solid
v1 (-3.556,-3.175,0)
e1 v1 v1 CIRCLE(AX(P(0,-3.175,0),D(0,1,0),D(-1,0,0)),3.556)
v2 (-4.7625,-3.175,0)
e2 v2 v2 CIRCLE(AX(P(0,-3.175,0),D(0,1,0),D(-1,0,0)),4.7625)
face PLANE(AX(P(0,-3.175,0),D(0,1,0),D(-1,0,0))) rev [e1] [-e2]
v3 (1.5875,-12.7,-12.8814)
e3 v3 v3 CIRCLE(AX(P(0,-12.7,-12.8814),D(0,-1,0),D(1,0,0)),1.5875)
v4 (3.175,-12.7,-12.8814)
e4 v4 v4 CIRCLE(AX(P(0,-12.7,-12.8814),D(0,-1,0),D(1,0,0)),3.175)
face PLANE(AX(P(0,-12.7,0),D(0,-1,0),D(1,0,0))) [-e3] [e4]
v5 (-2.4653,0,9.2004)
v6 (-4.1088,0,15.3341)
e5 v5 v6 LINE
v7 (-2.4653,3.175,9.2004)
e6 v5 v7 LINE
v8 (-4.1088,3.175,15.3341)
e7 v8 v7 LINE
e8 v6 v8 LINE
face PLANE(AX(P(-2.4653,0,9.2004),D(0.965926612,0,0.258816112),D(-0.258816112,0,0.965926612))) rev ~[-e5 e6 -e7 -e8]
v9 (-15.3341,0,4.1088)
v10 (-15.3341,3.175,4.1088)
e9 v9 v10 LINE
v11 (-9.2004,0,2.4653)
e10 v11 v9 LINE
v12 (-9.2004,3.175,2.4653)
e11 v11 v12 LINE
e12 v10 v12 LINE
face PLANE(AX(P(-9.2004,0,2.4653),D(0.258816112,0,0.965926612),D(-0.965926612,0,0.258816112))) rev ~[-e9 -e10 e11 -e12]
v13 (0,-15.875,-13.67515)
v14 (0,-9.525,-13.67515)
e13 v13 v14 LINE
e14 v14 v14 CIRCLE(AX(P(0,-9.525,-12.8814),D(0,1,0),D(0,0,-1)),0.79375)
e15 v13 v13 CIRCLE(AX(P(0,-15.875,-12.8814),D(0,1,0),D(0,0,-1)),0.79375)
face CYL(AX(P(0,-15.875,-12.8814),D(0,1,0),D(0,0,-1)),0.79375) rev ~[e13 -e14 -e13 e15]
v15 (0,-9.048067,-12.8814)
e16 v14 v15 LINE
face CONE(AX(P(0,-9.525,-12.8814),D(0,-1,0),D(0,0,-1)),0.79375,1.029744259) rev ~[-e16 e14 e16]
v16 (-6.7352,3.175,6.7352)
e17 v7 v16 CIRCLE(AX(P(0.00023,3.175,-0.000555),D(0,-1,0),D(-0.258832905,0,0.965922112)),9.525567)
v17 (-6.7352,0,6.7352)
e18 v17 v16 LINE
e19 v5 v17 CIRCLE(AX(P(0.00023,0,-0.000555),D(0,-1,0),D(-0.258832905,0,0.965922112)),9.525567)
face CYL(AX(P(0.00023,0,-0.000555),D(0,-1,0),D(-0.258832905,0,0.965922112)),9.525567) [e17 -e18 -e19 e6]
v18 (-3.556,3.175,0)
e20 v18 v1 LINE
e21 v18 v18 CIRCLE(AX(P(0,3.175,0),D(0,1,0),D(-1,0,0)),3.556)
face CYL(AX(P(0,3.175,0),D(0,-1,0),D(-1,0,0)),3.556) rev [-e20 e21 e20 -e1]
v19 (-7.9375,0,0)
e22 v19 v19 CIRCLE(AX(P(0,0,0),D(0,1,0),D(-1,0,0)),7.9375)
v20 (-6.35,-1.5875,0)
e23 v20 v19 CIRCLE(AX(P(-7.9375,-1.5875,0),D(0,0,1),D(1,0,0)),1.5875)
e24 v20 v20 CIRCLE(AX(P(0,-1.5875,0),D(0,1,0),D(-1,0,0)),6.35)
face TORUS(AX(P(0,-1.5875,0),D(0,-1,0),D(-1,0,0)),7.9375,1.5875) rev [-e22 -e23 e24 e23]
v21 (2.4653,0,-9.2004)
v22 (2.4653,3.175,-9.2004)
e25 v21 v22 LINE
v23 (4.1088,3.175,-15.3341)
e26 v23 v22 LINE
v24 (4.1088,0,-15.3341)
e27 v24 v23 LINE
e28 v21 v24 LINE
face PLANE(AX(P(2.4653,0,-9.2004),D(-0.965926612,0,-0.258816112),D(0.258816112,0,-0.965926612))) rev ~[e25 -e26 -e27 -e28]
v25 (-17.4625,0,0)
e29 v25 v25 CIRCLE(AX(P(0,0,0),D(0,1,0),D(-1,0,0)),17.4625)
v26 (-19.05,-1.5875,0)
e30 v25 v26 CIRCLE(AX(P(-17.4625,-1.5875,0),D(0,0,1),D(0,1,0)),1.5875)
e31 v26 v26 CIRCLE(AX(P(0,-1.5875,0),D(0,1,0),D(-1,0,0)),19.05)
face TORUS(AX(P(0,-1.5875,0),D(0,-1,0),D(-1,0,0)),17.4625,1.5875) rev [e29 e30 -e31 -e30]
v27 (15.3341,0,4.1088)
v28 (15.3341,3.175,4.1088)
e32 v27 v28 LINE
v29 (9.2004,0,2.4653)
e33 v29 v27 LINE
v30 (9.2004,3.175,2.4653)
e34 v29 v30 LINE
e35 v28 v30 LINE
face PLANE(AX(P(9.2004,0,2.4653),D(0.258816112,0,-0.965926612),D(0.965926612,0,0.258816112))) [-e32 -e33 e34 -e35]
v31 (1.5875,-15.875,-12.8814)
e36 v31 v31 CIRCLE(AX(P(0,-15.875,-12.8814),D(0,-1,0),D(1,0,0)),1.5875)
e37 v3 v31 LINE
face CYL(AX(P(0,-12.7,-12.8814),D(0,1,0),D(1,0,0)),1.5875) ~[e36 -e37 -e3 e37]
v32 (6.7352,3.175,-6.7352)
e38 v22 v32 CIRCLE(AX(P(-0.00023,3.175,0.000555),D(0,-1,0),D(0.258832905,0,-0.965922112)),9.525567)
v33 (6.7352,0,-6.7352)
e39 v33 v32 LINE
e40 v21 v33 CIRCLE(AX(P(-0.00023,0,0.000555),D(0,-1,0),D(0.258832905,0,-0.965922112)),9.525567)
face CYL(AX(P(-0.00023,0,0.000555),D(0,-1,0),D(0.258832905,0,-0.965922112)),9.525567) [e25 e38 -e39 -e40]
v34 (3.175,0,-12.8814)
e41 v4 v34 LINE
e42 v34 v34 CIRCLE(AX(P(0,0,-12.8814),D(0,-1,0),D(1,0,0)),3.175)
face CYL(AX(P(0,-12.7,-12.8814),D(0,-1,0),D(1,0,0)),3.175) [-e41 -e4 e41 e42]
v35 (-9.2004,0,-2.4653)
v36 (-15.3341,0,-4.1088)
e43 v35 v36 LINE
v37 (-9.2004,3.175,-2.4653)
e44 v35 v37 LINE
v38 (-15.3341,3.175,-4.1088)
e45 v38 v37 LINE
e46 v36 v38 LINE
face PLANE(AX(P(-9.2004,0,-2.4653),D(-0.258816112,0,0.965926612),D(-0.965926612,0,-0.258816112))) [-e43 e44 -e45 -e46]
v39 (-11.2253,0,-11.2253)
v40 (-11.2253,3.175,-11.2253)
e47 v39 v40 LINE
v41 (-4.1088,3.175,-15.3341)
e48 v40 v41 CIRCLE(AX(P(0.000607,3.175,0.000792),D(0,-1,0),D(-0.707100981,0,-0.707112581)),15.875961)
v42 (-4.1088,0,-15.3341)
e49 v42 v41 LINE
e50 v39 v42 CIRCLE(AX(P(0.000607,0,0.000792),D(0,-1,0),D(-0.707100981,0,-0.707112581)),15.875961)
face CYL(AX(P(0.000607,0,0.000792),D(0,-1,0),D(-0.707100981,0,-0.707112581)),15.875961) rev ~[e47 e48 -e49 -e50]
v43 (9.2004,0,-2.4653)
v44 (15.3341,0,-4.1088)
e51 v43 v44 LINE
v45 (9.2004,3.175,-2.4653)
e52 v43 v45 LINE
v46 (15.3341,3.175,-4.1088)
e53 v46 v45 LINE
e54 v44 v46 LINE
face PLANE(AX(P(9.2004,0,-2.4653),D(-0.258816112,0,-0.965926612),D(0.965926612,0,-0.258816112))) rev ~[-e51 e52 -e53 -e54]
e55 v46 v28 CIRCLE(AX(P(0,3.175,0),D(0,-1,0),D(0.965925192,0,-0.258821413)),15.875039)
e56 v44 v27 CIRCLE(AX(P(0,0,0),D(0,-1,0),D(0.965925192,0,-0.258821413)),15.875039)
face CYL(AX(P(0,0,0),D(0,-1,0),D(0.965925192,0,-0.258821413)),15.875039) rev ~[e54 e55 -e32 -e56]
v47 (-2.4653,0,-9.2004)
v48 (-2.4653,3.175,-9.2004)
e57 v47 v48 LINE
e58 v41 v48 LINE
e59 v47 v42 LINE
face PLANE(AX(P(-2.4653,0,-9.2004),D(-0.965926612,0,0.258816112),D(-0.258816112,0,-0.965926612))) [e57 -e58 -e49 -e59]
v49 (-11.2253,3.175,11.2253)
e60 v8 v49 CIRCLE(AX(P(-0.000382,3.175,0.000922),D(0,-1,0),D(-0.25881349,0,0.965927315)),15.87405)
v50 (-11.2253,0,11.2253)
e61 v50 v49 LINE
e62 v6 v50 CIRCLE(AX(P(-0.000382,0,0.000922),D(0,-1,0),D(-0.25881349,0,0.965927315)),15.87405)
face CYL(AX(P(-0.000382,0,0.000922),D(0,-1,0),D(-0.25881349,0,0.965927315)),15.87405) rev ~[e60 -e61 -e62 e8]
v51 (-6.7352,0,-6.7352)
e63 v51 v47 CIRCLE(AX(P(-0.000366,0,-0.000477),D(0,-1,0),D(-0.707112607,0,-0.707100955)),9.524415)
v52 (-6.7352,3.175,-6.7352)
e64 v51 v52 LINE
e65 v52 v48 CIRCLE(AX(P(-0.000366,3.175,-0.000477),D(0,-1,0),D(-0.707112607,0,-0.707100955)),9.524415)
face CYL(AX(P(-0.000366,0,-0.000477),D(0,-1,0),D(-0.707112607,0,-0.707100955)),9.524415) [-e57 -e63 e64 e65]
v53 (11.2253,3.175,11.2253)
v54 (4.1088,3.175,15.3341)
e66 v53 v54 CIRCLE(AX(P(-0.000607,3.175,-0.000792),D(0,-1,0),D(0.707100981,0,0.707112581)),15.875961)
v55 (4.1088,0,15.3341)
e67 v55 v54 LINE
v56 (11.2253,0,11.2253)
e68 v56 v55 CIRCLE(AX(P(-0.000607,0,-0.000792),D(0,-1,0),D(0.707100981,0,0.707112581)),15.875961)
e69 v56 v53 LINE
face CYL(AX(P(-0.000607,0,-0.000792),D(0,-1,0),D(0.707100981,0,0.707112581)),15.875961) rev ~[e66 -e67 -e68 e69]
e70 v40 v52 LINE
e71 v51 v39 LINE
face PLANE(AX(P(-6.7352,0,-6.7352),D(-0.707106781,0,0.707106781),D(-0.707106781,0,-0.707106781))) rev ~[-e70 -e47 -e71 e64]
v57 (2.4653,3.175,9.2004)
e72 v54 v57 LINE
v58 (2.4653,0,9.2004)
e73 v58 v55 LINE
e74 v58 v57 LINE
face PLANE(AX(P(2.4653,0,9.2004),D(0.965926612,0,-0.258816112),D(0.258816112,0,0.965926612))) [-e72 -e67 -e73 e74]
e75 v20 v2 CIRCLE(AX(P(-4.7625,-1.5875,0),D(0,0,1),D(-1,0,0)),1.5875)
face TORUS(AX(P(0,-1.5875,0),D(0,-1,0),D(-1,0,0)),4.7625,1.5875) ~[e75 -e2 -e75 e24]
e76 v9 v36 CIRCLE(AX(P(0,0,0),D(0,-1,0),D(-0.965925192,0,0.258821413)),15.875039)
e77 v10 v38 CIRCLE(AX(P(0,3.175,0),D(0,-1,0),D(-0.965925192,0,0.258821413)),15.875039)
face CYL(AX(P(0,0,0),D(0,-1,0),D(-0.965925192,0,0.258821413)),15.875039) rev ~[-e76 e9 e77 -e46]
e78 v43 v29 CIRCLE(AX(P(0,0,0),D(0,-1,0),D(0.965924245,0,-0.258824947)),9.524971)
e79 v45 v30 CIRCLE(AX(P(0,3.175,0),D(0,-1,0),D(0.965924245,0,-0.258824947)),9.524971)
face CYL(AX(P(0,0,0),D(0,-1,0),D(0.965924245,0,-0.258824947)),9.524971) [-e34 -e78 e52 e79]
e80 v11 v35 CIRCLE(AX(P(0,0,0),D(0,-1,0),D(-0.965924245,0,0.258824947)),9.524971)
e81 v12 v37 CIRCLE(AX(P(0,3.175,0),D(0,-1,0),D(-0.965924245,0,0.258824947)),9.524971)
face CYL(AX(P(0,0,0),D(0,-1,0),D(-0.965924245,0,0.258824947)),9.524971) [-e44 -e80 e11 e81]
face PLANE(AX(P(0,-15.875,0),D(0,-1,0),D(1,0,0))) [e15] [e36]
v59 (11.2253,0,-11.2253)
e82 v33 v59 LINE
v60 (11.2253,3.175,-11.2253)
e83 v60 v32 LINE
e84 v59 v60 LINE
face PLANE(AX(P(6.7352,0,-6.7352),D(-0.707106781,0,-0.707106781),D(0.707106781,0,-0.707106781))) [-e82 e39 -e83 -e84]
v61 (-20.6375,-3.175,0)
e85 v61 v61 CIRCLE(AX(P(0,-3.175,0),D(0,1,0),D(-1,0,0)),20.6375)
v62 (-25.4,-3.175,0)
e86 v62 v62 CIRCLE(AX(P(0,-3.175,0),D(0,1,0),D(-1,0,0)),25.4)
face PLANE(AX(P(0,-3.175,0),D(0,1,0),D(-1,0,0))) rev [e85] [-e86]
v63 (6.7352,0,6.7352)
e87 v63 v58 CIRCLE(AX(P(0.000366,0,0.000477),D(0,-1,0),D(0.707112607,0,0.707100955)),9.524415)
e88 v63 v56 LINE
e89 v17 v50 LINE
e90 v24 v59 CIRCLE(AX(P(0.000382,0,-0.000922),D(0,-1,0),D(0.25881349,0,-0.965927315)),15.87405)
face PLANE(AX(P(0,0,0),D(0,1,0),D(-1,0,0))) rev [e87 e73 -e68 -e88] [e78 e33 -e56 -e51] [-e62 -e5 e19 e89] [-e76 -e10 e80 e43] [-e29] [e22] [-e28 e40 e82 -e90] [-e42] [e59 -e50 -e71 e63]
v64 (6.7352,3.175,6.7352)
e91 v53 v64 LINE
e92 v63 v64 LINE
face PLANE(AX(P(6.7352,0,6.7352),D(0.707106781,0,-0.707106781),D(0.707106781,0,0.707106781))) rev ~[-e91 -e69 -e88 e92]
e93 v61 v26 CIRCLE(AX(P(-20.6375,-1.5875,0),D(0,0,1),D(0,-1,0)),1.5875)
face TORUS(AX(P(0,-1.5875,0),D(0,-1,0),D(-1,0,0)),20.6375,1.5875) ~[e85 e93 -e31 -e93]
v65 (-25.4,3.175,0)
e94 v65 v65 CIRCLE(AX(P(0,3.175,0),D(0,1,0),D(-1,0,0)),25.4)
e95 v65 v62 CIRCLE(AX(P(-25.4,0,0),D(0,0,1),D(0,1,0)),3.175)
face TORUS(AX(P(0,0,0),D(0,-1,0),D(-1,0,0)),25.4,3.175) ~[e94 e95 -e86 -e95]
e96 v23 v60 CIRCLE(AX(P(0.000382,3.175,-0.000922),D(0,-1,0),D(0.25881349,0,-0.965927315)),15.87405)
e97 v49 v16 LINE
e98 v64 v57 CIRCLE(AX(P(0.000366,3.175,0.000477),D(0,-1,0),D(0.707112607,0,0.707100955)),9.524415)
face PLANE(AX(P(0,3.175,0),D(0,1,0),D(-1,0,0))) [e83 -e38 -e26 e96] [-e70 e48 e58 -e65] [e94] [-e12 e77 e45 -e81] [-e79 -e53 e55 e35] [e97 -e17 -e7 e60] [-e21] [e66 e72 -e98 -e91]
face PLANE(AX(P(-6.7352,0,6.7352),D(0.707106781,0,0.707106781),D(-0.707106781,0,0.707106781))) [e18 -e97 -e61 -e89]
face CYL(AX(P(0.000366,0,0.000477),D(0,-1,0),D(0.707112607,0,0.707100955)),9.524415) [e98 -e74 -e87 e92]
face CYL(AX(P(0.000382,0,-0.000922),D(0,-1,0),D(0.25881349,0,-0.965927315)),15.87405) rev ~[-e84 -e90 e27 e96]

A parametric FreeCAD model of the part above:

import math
import FreeCAD as App
import Part
import Sketcher
from FreeCAD import Vector
Q = App.Units.Quantity

doc = App.newDocument("Part")
body = doc.addObject("PartDesign::Body", "Body")

# Sketch on XY plane
sketch1 = body.newObject("Sketcher::SketchObject", "Sketch")
sketch1.AttachmentSupport = (doc.getObject("XY_Plane"), [""])
sketch1.MapMode = "FlatFace"
sketch1.addGeometry([
    Part.LineSegment(Vector(-3.556, 3.175, 0), Vector(-25.4, 3.175, 0)),  # 0
    Part.ArcOfCircle(Part.Circle(Vector(-25.4, 0, 0), Vector(0, 0, 1), 3.175), math.radians(90), math.radians(270)),  # 1
    Part.LineSegment(Vector(-25.4, -3.175, 0), Vector(-20.6375, -3.175, 0)),  # 2
    Part.ArcOfCircle(Part.Circle(Vector(-20.6375, -1.5875, 0), Vector(0, 0, 1), 1.5875), math.radians(-90), math.radians(0)),  # 3
    Part.ArcOfCircle(Part.Circle(Vector(-17.4625, -1.5875, 0), Vector(0, 0, 1), 1.5875), math.radians(90), math.radians(180)),  # 4
    Part.LineSegment(Vector(-17.4625, 0, 0), Vector(-7.9375, 0, 0)),  # 5
    Part.ArcOfCircle(Part.Circle(Vector(-7.9375, -1.5875, 0), Vector(0, 0, 1), 1.5875), math.radians(0), math.radians(90)),  # 6
    Part.ArcOfCircle(Part.Circle(Vector(-4.7625, -1.5875, 0), Vector(0, 0, 1), 1.5875), math.radians(180), math.radians(270)),  # 7
    Part.LineSegment(Vector(-4.7625, -3.175, 0), Vector(-3.556, -3.175, 0)),  # 8
    Part.LineSegment(Vector(-3.556, -3.175, 0), Vector(-3.556, 3.175, 0)),  # 9
], False)
sketch1.addConstraint([
    Sketcher.Constraint("Tangent", 0, 2, 1, 1),
    Sketcher.Constraint("Tangent", 1, 2, 2, 1),
    Sketcher.Constraint("Tangent", 2, 2, 3, 1),
    Sketcher.Constraint("Tangent", 3, 2, 4, 2),
    Sketcher.Constraint("Tangent", 4, 1, 5, 1),
    Sketcher.Constraint("Tangent", 5, 2, 6, 2),
    Sketcher.Constraint("Tangent", 6, 1, 7, 1),
    Sketcher.Constraint("Tangent", 7, 2, 8, 1),
    Sketcher.Constraint("Coincident", 8, 2, 9, 1),
    Sketcher.Constraint("Coincident", 9, 2, 0, 1),
    Sketcher.Constraint("Horizontal", 0),
    Sketcher.Constraint("Horizontal", 2),
    Sketcher.Constraint("Horizontal", 5),
    Sketcher.Constraint("Horizontal", 8),
    Sketcher.Constraint("Vertical", 9),
    Sketcher.Constraint("Equal", 3, 4),
    Sketcher.Constraint("Equal", 4, 6),
    Sketcher.Constraint("Equal", 6, 7),
    Sketcher.Constraint("PointOnObject", 1, 3, -1),
    Sketcher.Constraint("PointOnObject", 4, 1, -1),
    Sketcher.Constraint("Horizontal", 3, 3, 4, 3),
    Sketcher.Constraint("Horizontal", 6, 3, 7, 3),
    Sketcher.Constraint("DistanceX", 1, 3, -1, 1, Q("1 in")),
    Sketcher.Constraint("Radius", 1, Q("0.125 in")),
    Sketcher.Constraint("DistanceX", 0, 2, 0, 1, Q("0.86 in")),
    Sketcher.Constraint("DistanceX", 6, 1, -1, 1, Q("0.25 in")),
    Sketcher.Constraint("DistanceX", 1, 3, 3, 2, Q("0.25 in")),
])
revolution = body.newObject("PartDesign::Revolution", "Revolution")
revolution.Profile = sketch1
revolution.ReferenceAxis = (sketch1, ["V_Axis"])
revolution.Angle = 360

# Sketch on XZ plane
sketch2 = body.newObject("Sketcher::SketchObject", "Sketch001")
sketch2.AttachmentSupport = (doc.getObject("XZ_Plane"), [""])
sketch2.MapMode = "FlatFace"
sketch2.addGeometry([
    Part.LineSegment(Vector(9.2004, -2.4653, 0), Vector(15.3341, -4.1088, 0)),  # 0
    Part.ArcOfCircle(Part.Circle(Vector(0, 0, 0), Vector(0, 0, 1), 15.875039), math.radians(-15.00014), math.radians(15.00014)),  # 1
    Part.LineSegment(Vector(15.3341, 4.1088, 0), Vector(9.2004, 2.4653, 0)),  # 2
    Part.ArcOfCircle(Part.Circle(Vector(0, 0, 0), Vector(0, 0, 1), 9.524971), math.radians(-15.00035), math.radians(15.00035)),  # 3
    Part.LineSegment(Vector(6.7352, 6.7352, 0), Vector(11.2253, 11.2253, 0)),  # 4
    Part.ArcOfCircle(Part.Circle(Vector(0, 0, 0), Vector(0, 0, 1), 15.875039), math.radians(45), math.radians(74.99986)),  # 5
    Part.LineSegment(Vector(4.1088, 15.3341, 0), Vector(2.4653, 9.2004, 0)),  # 6
    Part.ArcOfCircle(Part.Circle(Vector(0, 0, 0), Vector(0, 0, 1), 9.524971), math.radians(45), math.radians(74.99965)),  # 7
    Part.LineSegment(Vector(-2.4653, 9.2004, 0), Vector(-4.1088, 15.3341, 0)),  # 8
    Part.ArcOfCircle(Part.Circle(Vector(0, 0, 0), Vector(0, 0, 1), 15.874972), math.radians(105.00014), math.radians(135)),  # 9
    Part.LineSegment(Vector(-11.2253, 11.2253, 0), Vector(-6.7352, 6.7352, 0)),  # 10
    Part.ArcOfCircle(Part.Circle(Vector(0, 0, 0), Vector(0, 0, 1), 9.525011), math.radians(105.00035), math.radians(135)),  # 11
    Part.LineSegment(Vector(-9.2004, 2.4653, 0), Vector(-15.3341, 4.1088, 0)),  # 12
    Part.ArcOfCircle(Part.Circle(Vector(0, 0, 0), Vector(0, 0, 1), 15.875039), math.radians(164.99986), math.radians(195.00014)),  # 13
    Part.LineSegment(Vector(-15.3341, -4.1088, 0), Vector(-9.2004, -2.4653, 0)),  # 14
    Part.ArcOfCircle(Part.Circle(Vector(0, 0, 0), Vector(0, 0, 1), 9.524971), math.radians(164.99965), math.radians(195.00035)),  # 15
    Part.LineSegment(Vector(-6.7352, -6.7352, 0), Vector(-11.2253, -11.2253, 0)),  # 16
    Part.ArcOfCircle(Part.Circle(Vector(0, 0, 0), Vector(0, 0, 1), 15.875039), math.radians(-135), math.radians(-105.00014)),  # 17
    Part.LineSegment(Vector(-4.1088, -15.3341, 0), Vector(-2.4653, -9.2004, 0)),  # 18
    Part.ArcOfCircle(Part.Circle(Vector(0, 0, 0), Vector(0, 0, 1), 9.524971), math.radians(-135), math.radians(-105.00035)),  # 19
    Part.LineSegment(Vector(2.4653, -9.2004, 0), Vector(4.1088, -15.3341, 0)),  # 20
    Part.ArcOfCircle(Part.Circle(Vector(0, 0, 0), Vector(0, 0, 1), 15.874972), math.radians(-74.99986), math.radians(-45)),  # 21
    Part.LineSegment(Vector(11.2253, -11.2253, 0), Vector(6.7352, -6.7352, 0)),  # 22
    Part.ArcOfCircle(Part.Circle(Vector(0, 0, 0), Vector(0, 0, 1), 9.525011), math.radians(-74.99965), math.radians(-45)),  # 23
], False)
sketch2.addConstraint([
    Sketcher.Constraint("Coincident", 0, 2, 1, 1),
    Sketcher.Constraint("Coincident", 1, 2, 2, 1),
    Sketcher.Constraint("Coincident", 2, 2, 3, 2),
    Sketcher.Constraint("Coincident", 3, 1, 0, 1),
    Sketcher.Constraint("Coincident", 4, 2, 5, 1),
    Sketcher.Constraint("Coincident", 5, 2, 6, 1),
    Sketcher.Constraint("Coincident", 6, 2, 7, 2),
    Sketcher.Constraint("Coincident", 7, 1, 4, 1),
    Sketcher.Constraint("Coincident", 8, 2, 9, 1),
    Sketcher.Constraint("Coincident", 9, 2, 10, 1),
    Sketcher.Constraint("Coincident", 10, 2, 11, 2),
    Sketcher.Constraint("Coincident", 11, 1, 8, 1),
    Sketcher.Constraint("Coincident", 12, 2, 13, 1),
    Sketcher.Constraint("Coincident", 13, 2, 14, 1),
    Sketcher.Constraint("Coincident", 14, 2, 15, 2),
    Sketcher.Constraint("Coincident", 15, 1, 12, 1),
    Sketcher.Constraint("Coincident", 16, 2, 17, 1),
    Sketcher.Constraint("Coincident", 17, 2, 18, 1),
    Sketcher.Constraint("Coincident", 18, 2, 19, 2),
    Sketcher.Constraint("Coincident", 19, 1, 16, 1),
    Sketcher.Constraint("Coincident", 20, 2, 21, 1),
    Sketcher.Constraint("Coincident", 21, 2, 22, 1),
    Sketcher.Constraint("Coincident", 22, 2, 23, 2),
    Sketcher.Constraint("Coincident", 23, 1, 20, 1),
    Sketcher.Constraint("Coincident", 1, 3, -1, 1),
    Sketcher.Constraint("Coincident", 3, 3, -1, 1),
    Sketcher.Constraint("Coincident", 5, 3, -1, 1),
    Sketcher.Constraint("Coincident", 7, 3, -1, 1),
    Sketcher.Constraint("Coincident", 9, 3, -1, 1),
    Sketcher.Constraint("Coincident", 11, 3, -1, 1),
    Sketcher.Constraint("Coincident", 13, 3, -1, 1),
    Sketcher.Constraint("Coincident", 15, 3, -1, 1),
    Sketcher.Constraint("Coincident", 17, 3, -1, 1),
    Sketcher.Constraint("Coincident", 19, 3, -1, 1),
    Sketcher.Constraint("Coincident", 21, 3, -1, 1),
    Sketcher.Constraint("Coincident", 23, 3, -1, 1),
    Sketcher.Constraint("Equal", 1, 5),
    Sketcher.Constraint("Equal", 3, 7),
    Sketcher.Constraint("Equal", 5, 9),
    Sketcher.Constraint("Equal", 7, 11),
    Sketcher.Constraint("Equal", 9, 13),
    Sketcher.Constraint("Equal", 11, 15),
    Sketcher.Constraint("Equal", 13, 17),
    Sketcher.Constraint("Equal", 15, 19),
    Sketcher.Constraint("Equal", 17, 21),
    Sketcher.Constraint("Equal", 19, 23),
    Sketcher.Constraint("Perpendicular", 0, 6),
    Sketcher.Constraint("Perpendicular", 2, 8),
    Sketcher.Constraint("Perpendicular", 4, 10),
    Sketcher.Constraint("Perpendicular", 6, 12),
    Sketcher.Constraint("Perpendicular", 8, 14),
    Sketcher.Constraint("Perpendicular", 10, 16),
    Sketcher.Constraint("Perpendicular", 12, 18),
    Sketcher.Constraint("Perpendicular", 14, 20),
    Sketcher.Constraint("Perpendicular", 16, 22),
    Sketcher.Constraint("Horizontal", 5, 2, 8, 2),
    Sketcher.Constraint("Horizontal", 4, 2, 9, 2),
    Sketcher.Constraint("Horizontal", 7, 1, 10, 2),
    Sketcher.Constraint("Horizontal", 6, 2, 11, 1),
    Sketcher.Constraint("Horizontal", 1, 2, 12, 2),
    Sketcher.Constraint("Horizontal", 0, 2, 13, 2),
    Sketcher.Constraint("Horizontal", 17, 2, 20, 2),
    Sketcher.Constraint("Horizontal", 16, 2, 21, 2),
    Sketcher.Constraint("Vertical", 0, 2, 1, 2),
    Sketcher.Constraint("Vertical", 9, 2, 16, 2),
    Sketcher.Constraint("Vertical", 8, 2, 17, 2),
    Sketcher.Constraint("Radius", 1, Q("0.625 in")),
    Sketcher.Constraint("Radius", 3, Q("0.375 in")),
    Sketcher.Constraint("Angle", 0, Q("-14.9998 deg")),
    Sketcher.Constraint("DistanceY", 3, 1, 4, 2, Q("0.539 in")),
    Sketcher.Constraint("DistanceX", 9, 2, 6, 2, Q("0.539 in")),
    Sketcher.Constraint("DistanceX", -1, 1, 0, 2, Q("0.6037 in")),
])
pocket1 = body.newObject("PartDesign::Pocket", "Pocket")
pocket1.Profile = sketch2
pocket1.Length = Q("0.25 in")

# Sketch on XZ plane
sketch3 = body.newObject("Sketcher::SketchObject", "Sketch002")
sketch3.AttachmentSupport = (doc.getObject("XZ_Plane"), [""])
sketch3.MapMode = "FlatFace"
sketch3.AttachmentOffset = App.Placement(Vector(0, 0, 0.5 * 25.4), App.Rotation())
sketch3.addGeometry(Part.Circle(Vector(0, -12.8814, 0), Vector(0, 0, 1), 3.175), False)
sketch3.addConstraint([
    Sketcher.Constraint("PointOnObject", 0, 3, -2),
    Sketcher.Constraint("Diameter", 0, Q("0.25 in")),
    Sketcher.Constraint("DistanceY", 0, 3, -1, 1, 12.8814),
])
pad1 = body.newObject("PartDesign::Pad", "Pad")
pad1.Profile = sketch3
pad1.Type = "UpToFirst"
pad1.Reversed = True

# Sketch on XZ plane
sketch4 = body.newObject("Sketcher::SketchObject", "Sketch003")
sketch4.AttachmentSupport = (doc.getObject("XZ_Plane"), [""])
sketch4.MapMode = "FlatFace"
sketch4.AttachmentOffset = App.Placement(Vector(0, 0, 0.5 * 25.4), App.Rotation())
sketch4.addGeometry(Part.Circle(Vector(0, -12.8814, 0), Vector(0, 0, 1), 1.5875), False)
sketch4.addConstraint([
    Sketcher.Constraint("PointOnObject", 0, 3, -2),
    Sketcher.Constraint("Diameter", 0, Q("0.125 in")),
    Sketcher.Constraint("DistanceY", 0, 3, -1, 1, 12.8814),
])
pad2 = body.newObject("PartDesign::Pad", "Pad001")
pad2.Profile = sketch4
pad2.Length = Q("0.125 in")

# Sketch on XZ plane
sketch5 = body.newObject("Sketcher::SketchObject", "Sketch004")
sketch5.AttachmentSupport = (doc.getObject("XZ_Plane"), [""])
sketch5.MapMode = "FlatFace"
sketch5.AttachmentOffset = App.Placement(Vector(0, 0, 0.625 * 25.4), App.Rotation())
sketch5.addGeometry(Part.Circle(Vector(0, -12.8814, 0), Vector(0, 0, 1), 0.79375), False)
sketch5.addConstraint([
    Sketcher.Constraint("PointOnObject", 0, 3, -2),
    Sketcher.Constraint("Diameter", 0, Q("0.0625 in")),
    Sketcher.Constraint("DistanceY", 0, 3, -1, 1, 12.8814),
])
doc.recompute()
hole = body.newObject("PartDesign::Hole", "Hole")
hole.Profile = sketch5
hole.ThreadType = "None"
hole.Diameter = Q("0.0625 in")
hole.DepthType = "Dimension"
hole.Depth = Q("0.25 in")
hole.DrillPoint = "Angled"
hole.DrillPointAngle = 118

doc.recompute()
